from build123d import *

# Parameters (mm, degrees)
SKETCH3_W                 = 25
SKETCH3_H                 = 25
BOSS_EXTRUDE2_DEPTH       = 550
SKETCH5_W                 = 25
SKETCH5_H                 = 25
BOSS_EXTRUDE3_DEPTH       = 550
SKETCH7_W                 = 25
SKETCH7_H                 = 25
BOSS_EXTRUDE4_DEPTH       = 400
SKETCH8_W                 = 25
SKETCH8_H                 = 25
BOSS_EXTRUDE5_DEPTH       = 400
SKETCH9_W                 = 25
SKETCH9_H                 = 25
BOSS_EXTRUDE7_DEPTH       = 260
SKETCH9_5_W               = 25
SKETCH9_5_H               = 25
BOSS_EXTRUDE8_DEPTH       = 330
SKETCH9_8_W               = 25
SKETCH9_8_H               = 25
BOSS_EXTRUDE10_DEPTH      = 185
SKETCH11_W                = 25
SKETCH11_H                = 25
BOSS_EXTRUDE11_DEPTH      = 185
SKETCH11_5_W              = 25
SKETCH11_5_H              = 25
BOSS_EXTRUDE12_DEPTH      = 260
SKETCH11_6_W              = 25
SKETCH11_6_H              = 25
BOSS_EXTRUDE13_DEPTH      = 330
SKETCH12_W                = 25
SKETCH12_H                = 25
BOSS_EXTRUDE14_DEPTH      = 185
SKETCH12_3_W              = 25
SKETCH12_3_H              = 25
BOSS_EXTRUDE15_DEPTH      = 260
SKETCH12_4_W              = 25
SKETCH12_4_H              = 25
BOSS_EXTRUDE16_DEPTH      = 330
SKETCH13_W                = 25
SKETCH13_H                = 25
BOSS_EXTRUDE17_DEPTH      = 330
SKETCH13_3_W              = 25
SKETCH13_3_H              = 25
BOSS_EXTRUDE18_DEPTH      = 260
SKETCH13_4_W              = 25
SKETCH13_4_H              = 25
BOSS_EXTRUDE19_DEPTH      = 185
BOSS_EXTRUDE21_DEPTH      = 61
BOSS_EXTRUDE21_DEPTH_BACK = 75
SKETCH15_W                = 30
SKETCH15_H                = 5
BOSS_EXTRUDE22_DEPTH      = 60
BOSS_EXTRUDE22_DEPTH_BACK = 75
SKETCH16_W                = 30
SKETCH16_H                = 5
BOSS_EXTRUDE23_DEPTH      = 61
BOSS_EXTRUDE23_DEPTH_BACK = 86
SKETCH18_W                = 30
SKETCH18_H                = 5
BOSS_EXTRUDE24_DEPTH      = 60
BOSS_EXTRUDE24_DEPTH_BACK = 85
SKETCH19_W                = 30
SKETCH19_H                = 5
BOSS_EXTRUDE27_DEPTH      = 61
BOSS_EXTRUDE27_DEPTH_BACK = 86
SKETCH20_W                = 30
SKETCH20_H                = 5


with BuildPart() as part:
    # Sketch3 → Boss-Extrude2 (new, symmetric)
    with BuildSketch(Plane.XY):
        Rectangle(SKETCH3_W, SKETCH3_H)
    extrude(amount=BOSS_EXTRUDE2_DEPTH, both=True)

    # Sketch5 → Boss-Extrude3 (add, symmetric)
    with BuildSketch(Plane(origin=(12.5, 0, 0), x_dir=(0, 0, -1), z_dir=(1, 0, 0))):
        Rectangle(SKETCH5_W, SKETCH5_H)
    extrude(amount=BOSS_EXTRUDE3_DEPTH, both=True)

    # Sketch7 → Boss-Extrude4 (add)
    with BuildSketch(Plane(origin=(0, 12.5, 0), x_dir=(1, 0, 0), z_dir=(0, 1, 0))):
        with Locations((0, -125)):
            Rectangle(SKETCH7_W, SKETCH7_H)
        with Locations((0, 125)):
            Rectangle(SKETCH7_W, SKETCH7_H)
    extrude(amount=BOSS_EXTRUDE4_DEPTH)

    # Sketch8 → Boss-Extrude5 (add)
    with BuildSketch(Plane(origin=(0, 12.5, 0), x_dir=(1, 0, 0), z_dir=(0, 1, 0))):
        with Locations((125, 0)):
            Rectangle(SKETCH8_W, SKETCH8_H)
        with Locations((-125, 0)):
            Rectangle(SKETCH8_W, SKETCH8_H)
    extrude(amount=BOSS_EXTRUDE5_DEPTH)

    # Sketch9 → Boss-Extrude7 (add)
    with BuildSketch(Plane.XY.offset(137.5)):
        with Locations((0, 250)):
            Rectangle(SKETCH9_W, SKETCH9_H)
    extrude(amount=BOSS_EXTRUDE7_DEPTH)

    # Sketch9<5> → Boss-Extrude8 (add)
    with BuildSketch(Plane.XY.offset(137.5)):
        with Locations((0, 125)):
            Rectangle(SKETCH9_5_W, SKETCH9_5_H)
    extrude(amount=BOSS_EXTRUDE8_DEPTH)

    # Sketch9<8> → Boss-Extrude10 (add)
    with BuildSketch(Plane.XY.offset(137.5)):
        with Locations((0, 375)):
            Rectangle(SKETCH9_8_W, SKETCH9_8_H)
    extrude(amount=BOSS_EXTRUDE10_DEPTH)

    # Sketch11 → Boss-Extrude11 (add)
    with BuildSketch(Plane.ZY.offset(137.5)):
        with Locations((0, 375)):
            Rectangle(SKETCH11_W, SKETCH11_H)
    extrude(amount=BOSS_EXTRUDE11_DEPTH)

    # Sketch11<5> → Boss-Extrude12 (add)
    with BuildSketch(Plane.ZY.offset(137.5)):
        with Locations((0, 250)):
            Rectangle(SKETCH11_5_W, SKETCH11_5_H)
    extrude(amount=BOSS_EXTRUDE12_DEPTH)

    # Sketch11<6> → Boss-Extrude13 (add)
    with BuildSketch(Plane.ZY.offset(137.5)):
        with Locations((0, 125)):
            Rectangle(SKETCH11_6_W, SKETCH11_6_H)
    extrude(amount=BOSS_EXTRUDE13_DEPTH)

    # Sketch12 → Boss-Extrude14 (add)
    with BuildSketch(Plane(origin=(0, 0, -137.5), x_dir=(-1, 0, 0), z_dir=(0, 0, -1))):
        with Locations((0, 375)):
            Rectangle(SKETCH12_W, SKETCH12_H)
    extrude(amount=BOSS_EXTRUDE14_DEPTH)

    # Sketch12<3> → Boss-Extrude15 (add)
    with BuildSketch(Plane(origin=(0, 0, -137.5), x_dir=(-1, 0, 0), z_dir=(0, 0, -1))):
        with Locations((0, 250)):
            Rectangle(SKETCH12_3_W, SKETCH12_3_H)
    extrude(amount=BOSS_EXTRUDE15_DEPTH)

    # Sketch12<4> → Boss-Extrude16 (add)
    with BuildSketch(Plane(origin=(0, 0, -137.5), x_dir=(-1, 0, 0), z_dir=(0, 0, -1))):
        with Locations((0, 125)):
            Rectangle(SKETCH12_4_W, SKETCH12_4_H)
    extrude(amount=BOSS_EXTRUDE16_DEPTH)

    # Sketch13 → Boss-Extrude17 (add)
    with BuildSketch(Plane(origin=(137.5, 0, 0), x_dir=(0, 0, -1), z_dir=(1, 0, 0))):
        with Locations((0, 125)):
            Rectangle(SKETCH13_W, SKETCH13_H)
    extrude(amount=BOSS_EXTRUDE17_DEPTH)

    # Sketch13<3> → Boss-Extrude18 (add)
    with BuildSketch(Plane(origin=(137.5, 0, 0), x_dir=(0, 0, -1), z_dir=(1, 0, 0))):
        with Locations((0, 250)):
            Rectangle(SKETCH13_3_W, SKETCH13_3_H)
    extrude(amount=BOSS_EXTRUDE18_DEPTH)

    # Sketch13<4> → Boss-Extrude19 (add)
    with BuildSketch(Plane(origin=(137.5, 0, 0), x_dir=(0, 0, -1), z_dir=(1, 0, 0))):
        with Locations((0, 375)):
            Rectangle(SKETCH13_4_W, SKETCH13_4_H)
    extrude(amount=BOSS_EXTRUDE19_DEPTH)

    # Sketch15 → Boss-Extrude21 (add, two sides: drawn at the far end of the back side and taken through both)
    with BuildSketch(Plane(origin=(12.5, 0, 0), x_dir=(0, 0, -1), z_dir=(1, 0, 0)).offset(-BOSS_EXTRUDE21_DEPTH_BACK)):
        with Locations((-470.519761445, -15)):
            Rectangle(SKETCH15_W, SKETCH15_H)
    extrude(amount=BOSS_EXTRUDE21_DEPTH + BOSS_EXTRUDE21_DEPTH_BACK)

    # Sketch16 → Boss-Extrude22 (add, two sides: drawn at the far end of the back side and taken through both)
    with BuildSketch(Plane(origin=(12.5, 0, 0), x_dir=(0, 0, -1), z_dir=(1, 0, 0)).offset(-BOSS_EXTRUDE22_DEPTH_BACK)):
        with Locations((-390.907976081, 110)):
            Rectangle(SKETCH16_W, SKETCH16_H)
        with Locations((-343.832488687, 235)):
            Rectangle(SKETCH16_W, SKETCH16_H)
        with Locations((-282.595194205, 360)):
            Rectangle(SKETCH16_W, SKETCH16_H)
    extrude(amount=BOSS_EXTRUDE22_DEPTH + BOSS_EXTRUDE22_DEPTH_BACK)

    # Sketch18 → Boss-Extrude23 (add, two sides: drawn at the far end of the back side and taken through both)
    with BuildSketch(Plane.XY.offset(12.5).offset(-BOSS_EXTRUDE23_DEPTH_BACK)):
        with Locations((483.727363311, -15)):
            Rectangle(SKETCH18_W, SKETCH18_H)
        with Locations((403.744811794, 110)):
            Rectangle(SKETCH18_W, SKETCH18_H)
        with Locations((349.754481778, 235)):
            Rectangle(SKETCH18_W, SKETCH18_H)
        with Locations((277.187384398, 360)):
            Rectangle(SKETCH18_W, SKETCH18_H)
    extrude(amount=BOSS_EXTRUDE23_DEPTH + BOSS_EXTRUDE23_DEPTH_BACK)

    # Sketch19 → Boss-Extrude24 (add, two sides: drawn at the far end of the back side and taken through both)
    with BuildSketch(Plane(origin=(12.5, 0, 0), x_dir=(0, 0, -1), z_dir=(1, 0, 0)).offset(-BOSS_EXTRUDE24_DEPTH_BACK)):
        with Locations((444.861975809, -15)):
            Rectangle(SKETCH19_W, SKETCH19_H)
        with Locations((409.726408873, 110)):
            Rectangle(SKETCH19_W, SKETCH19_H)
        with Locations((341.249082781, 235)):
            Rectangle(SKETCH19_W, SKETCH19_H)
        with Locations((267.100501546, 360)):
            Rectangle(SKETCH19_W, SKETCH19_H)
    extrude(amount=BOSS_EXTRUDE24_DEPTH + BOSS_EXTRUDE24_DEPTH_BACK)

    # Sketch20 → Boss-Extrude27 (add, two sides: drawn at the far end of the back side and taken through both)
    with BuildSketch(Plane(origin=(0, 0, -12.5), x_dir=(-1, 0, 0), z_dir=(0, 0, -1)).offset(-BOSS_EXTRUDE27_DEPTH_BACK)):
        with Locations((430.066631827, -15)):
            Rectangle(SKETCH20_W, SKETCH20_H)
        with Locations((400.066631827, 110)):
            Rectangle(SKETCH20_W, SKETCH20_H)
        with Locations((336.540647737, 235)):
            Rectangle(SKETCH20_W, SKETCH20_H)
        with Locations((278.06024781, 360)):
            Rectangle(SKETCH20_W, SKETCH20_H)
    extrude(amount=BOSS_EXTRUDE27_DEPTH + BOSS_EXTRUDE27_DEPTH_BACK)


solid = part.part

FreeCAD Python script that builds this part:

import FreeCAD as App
import Part
import Sketcher

V = App.Vector

doc = App.newDocument("Part")
body = doc.addObject("PartDesign::Body", "Body")

# Sketch on XY plane
sketch1 = body.newObject("Sketcher::SketchObject", "Sketch")
sketch1.AttachmentSupport = (doc.getObject("XY_Plane"), [""])
sketch1.MapMode = "FlatFace"
sketch1.addGeometry(Part.LineSegment(V(-12, 12, 0), V(-12, -12, 0)), False)
sketch1.addGeometry(Part.LineSegment(V(-12, -12, 0), V(12, -12, 0)), False)
sketch1.addGeometry(Part.LineSegment(V(12, -12, 0), V(12, 12, 0)), False)
sketch1.addGeometry(Part.LineSegment(V(12, 12, 0), V(-12, 12, 0)), False)
sketch1.addConstraint(Sketcher.Constraint("Coincident", 0, 2, 1, 1))
sketch1.addConstraint(Sketcher.Constraint("Coincident", 1, 2, 2, 1))
sketch1.addConstraint(Sketcher.Constraint("Coincident", 2, 2, 3, 1))
sketch1.addConstraint(Sketcher.Constraint("Coincident", 3, 2, 0, 1))
sketch1.addConstraint(Sketcher.Constraint("Vertical", 0))
sketch1.addConstraint(Sketcher.Constraint("Horizontal", 1))
sketch1.addConstraint(Sketcher.Constraint("Vertical", 2))
sketch1.addConstraint(Sketcher.Constraint("Horizontal", 3))
sketch1.addConstraint(Sketcher.Constraint("Symmetric", 0, 2, 2, 2, -1, 1))
sketch1.addConstraint(Sketcher.Constraint("Equal", 3, 0))
sketch1.addConstraint(Sketcher.Constraint("DistanceX", 1, 1, 1, 2, 25.0))
pad1 = body.newObject("PartDesign::Pad", "Pad")
pad1.Profile = sketch1
pad1.Length = 1100
pad1.Midplane = True

# Sketch on YZ plane
sketch2 = body.newObject("Sketcher::SketchObject", "Sketch001")
sketch2.AttachmentSupport = (doc.getObject("YZ_Plane"), [""])
sketch2.MapMode = "FlatFace"
sketch2.AttachmentOffset = App.Placement(V(0, 0, 12.5), App.Rotation())
sketch2.addGeometry(Part.LineSegment(V(12, 12, 0), V(-12, 12, 0)), False)
sketch2.addGeometry(Part.LineSegment(V(-12, 12, 0), V(-12, -12, 0)), False)
sketch2.addGeometry(Part.LineSegment(V(-12, -12, 0), V(12, -12, 0)), False)
sketch2.addGeometry(Part.LineSegment(V(12, -12, 0), V(12, 12, 0)), False)
sketch2.addConstraint(Sketcher.Constraint("Coincident", 0, 2, 1, 1))
sketch2.addConstraint(Sketcher.Constraint("Coincident", 1, 2, 2, 1))
sketch2.addConstraint(Sketcher.Constraint("Coincident", 2, 2, 3, 1))
sketch2.addConstraint(Sketcher.Constraint("Coincident", 3, 2, 0, 1))
sketch2.addConstraint(Sketcher.Constraint("Horizontal", 0))
sketch2.addConstraint(Sketcher.Constraint("Vertical", 1))
sketch2.addConstraint(Sketcher.Constraint("Horizontal", 2))
sketch2.addConstraint(Sketcher.Constraint("Vertical", 3))
sketch2.addConstraint(Sketcher.Constraint("Symmetric", 0, 2, 2, 2, -1, 1))
sketch2.addConstraint(Sketcher.Constraint("Equal", 2, 1))
sketch2.addConstraint(Sketcher.Constraint("DistanceX", 0, 2, 0, 1, 25.0))
pad2 = body.newObject("PartDesign::Pad", "Pad001")
pad2.Profile = sketch2
pad2.Length = 1100
pad2.Midplane = True

# Sketch on XZ plane
sketch3 = body.newObject("Sketcher::SketchObject", "Sketch002")
sketch3.AttachmentSupport = (doc.getObject("XZ_Plane"), [""])
sketch3.MapMode = "FlatFace"
sketch3.AttachmentOffset = App.Placement(V(0, 0, -12.5), App.Rotation())
sketch3.addGeometry(Part.LineSegment(V(-12, 112, 0), V(-12, 138, 0)), False)
sketch3.addGeometry(Part.LineSegment(V(-12, 138, 0), V(12, 138, 0)), False)
sketch3.addGeometry(Part.LineSegment(V(12, 138, 0), V(12, 112, 0)), False)
sketch3.addGeometry(Part.LineSegment(V(12, 112, 0), V(-12, 112, 0)), False)
sketch3.addGeometry(Part.LineSegment(V(-12, -138, 0), V(-12, -112, 0)), False)
sketch3.addGeometry(Part.LineSegment(V(-12, -112, 0), V(12, -112, 0)), False)
sketch3.addGeometry(Part.LineSegment(V(12, -112, 0), V(12, -138, 0)), False)
sketch3.addGeometry(Part.LineSegment(V(12, -138, 0), V(-12, -138, 0)), False)
sketch3.addConstraint(Sketcher.Constraint("Coincident", 0, 2, 1, 1))
sketch3.addConstraint(Sketcher.Constraint("Coincident", 1, 2, 2, 1))
sketch3.addConstraint(Sketcher.Constraint("Coincident", 2, 2, 3, 1))
sketch3.addConstraint(Sketcher.Constraint("Coincident", 3, 2, 0, 1))
sketch3.addConstraint(Sketcher.Constraint("Coincident", 4, 2, 5, 1))
sketch3.addConstraint(Sketcher.Constraint("Coincident", 5, 2, 6, 1))
sketch3.addConstraint(Sketcher.Constraint("Coincident", 6, 2, 7, 1))
sketch3.addConstraint(Sketcher.Constraint("Coincident", 7, 2, 4, 1))
sketch3.addConstraint(Sketcher.Constraint("Vertical", 0))
sketch3.addConstraint(Sketcher.Constraint("Horizontal", 1))
sketch3.addConstraint(Sketcher.Constraint("Vertical", 2))
sketch3.addConstraint(Sketcher.Constraint("Horizontal", 3))
sketch3.addConstraint(Sketcher.Constraint("Vertical", 4))
sketch3.addConstraint(Sketcher.Constraint("Horizontal", 5))
sketch3.addConstraint(Sketcher.Constraint("Vertical", 6))
sketch3.addConstraint(Sketcher.Constraint("Horizontal", 7))
sketch3.addConstraint(Sketcher.Constraint("Symmetric", 2, 2, 4, 2, -1, 1))
sketch3.addConstraint(Sketcher.Constraint("Symmetric", 0, 2, 6, 2, -1, 1))
sketch3.addConstraint(Sketcher.Constraint("Vertical", 3, 2, 4, 2))
sketch3.addConstraint(Sketcher.Constraint("Equal", 7, 0))
sketch3.addConstraint(Sketcher.Constraint("DistanceX", 1, 1, 1, 2, 25.0))
sketch3.addConstraint(Sketcher.Constraint("DistanceY", 4, 2, 3, 2, 225.0))
pad3 = body.newObject("PartDesign::Pad", "Pad002")
pad3.Profile = sketch3
pad3.Length = 400
pad3.Reversed = True

# Sketch on XZ plane
sketch4 = body.newObject("Sketcher::SketchObject", "Sketch003")
sketch4.AttachmentSupport = (doc.getObject("XZ_Plane"), [""])
sketch4.MapMode = "FlatFace"
sketch4.AttachmentOffset = App.Placement(V(0, 0, -12.5), App.Rotation())
sketch4.addGeometry(Part.LineSegment(V(112, -12, 0), V(112, 12, 0)), False)
sketch4.addGeometry(Part.LineSegment(V(112, 12, 0), V(138, 12, 0)), False)
sketch4.addGeometry(Part.LineSegment(V(138, 12, 0), V(138, -12, 0)), False)
sketch4.addGeometry(Part.LineSegment(V(138, -12, 0), V(112, -12, 0)), False)
sketch4.addGeometry(Part.LineSegment(V(-138, -12, 0), V(-138, 12, 0)), False)
sketch4.addGeometry(Part.LineSegment(V(-138, 12, 0), V(-112, 12, 0)), False)
sketch4.addGeometry(Part.LineSegment(V(-112, 12, 0), V(-112, -12, 0)), False)
sketch4.addGeometry(Part.LineSegment(V(-112, -12, 0), V(-138, -12, 0)), False)
sketch4.addConstraint(Sketcher.Constraint("Coincident", 0, 2, 1, 1))
sketch4.addConstraint(Sketcher.Constraint("Coincident", 1, 2, 2, 1))
sketch4.addConstraint(Sketcher.Constraint("Coincident", 2, 2, 3, 1))
sketch4.addConstraint(Sketcher.Constraint("Coincident", 3, 2, 0, 1))
sketch4.addConstraint(Sketcher.Constraint("Coincident", 4, 2, 5, 1))
sketch4.addConstraint(Sketcher.Constraint("Coincident", 5, 2, 6, 1))
sketch4.addConstraint(Sketcher.Constraint("Coincident", 6, 2, 7, 1))
sketch4.addConstraint(Sketcher.Constraint("Coincident", 7, 2, 4, 1))
sketch4.addConstraint(Sketcher.Constraint("Vertical", 0))
sketch4.addConstraint(Sketcher.Constraint("Horizontal", 1))
sketch4.addConstraint(Sketcher.Constraint("Vertical", 2))
sketch4.addConstraint(Sketcher.Constraint("Horizontal", 3))
sketch4.addConstraint(Sketcher.Constraint("Vertical", 4))
sketch4.addConstraint(Sketcher.Constraint("Horizontal", 5))
sketch4.addConstraint(Sketcher.Constraint("Vertical", 6))
sketch4.addConstraint(Sketcher.Constraint("Horizontal", 7))
sketch4.addConstraint(Sketcher.Constraint("Symmetric", 2, 2, 4, 2, -1, 1))
sketch4.addConstraint(Sketcher.Constraint("Symmetric", 0, 2, 6, 2, -1, 1))
sketch4.addConstraint(Sketcher.Constraint("Horizontal", 1, 2, 4, 2))
sketch4.addConstraint(Sketcher.Constraint("Equal", 7, 0))
sketch4.addConstraint(Sketcher.Constraint("DistanceX", 1, 1, 1, 2, 25.0))
sketch4.addConstraint(Sketcher.Constraint("DistanceX", 4, 2, 0, 2, 250.0))
pad4 = body.newObject("PartDesign::Pad", "Pad003")
pad4.Profile = sketch4
pad4.Length = 400
pad4.Reversed = True

# Sketch on XY plane
sketch5 = body.newObject("Sketcher::SketchObject", "Sketch004")
sketch5.AttachmentSupport = (doc.getObject("XY_Plane"), [""])
sketch5.MapMode = "FlatFace"
sketch5.AttachmentOffset = App.Placement(V(0, 0, 137.5), App.Rotation())
sketch5.addGeometry(Part.LineSegment(V(-12, 262, 0), V(-12, 238, 0)), False)
sketch5.addGeometry(Part.LineSegment(V(-12, 238, 0), V(12, 238, 0)), False)
sketch5.addGeometry(Part.LineSegment(V(12, 238, 0), V(12, 262, 0)), False)
sketch5.addGeometry(Part.LineSegment(V(12, 262, 0), V(-12, 262, 0)), False)
sketch5.addConstraint(Sketcher.Constraint("Coincident", 0, 2, 1, 1))
sketch5.addConstraint(Sketcher.Constraint("Coincident", 1, 2, 2, 1))
sketch5.addConstraint(Sketcher.Constraint("Coincident", 2, 2, 3, 1))
sketch5.addConstraint(Sketcher.Constraint("Coincident", 3, 2, 0, 1))
sketch5.addConstraint(Sketcher.Constraint("Vertical", 0))
sketch5.addConstraint(Sketcher.Constraint("Horizontal", 1))
sketch5.addConstraint(Sketcher.Constraint("Vertical", 2))
sketch5.addConstraint(Sketcher.Constraint("Horizontal", 3))
sketch5.addConstraint(Sketcher.Constraint("Equal", 3, 0))
sketch5.addConstraint(Sketcher.Constraint("DistanceX", 1, 1, 1, 2, 25.0))
sketch5.addConstraint(Sketcher.Constraint("DistanceX", 0, 2, -1, 1, 12.5))
sketch5.addConstraint(Sketcher.Constraint("DistanceY", -1, 1, 0, 2, 237.5))
pad5 = body.newObject("PartDesign::Pad", "Pad004")
pad5.Profile = sketch5
pad5.Length = 260

# Sketch on XY plane
sketch6 = body.newObject("Sketcher::SketchObject", "Sketch005")
sketch6.AttachmentSupport = (doc.getObject("XY_Plane"), [""])
sketch6.MapMode = "FlatFace"
sketch6.AttachmentOffset = App.Placement(V(0, 0, 137.5), App.Rotation())
sketch6.addGeometry(Part.LineSegment(V(-12, 138, 0), V(-12, 112, 0)), False)
sketch6.addGeometry(Part.LineSegment(V(-12, 112, 0), V(12, 112, 0)), False)
sketch6.addGeometry(Part.LineSegment(V(12, 112, 0), V(12, 138, 0)), False)
sketch6.addGeometry(Part.LineSegment(V(12, 138, 0), V(-12, 138, 0)), False)
sketch6.addConstraint(Sketcher.Constraint("Coincident", 0, 2, 1, 1))
sketch6.addConstraint(Sketcher.Constraint("Coincident", 1, 2, 2, 1))
sketch6.addConstraint(Sketcher.Constraint("Coincident", 2, 2, 3, 1))
sketch6.addConstraint(Sketcher.Constraint("Coincident", 3, 2, 0, 1))
sketch6.addConstraint(Sketcher.Constraint("Vertical", 0))
sketch6.addConstraint(Sketcher.Constraint("Horizontal", 1))
sketch6.addConstraint(Sketcher.Constraint("Vertical", 2))
sketch6.addConstraint(Sketcher.Constraint("Horizontal", 3))
sketch6.addConstraint(Sketcher.Constraint("Equal", 3, 0))
sketch6.addConstraint(Sketcher.Constraint("DistanceX", 1, 1, 1, 2, 25.0))
sketch6.addConstraint(Sketcher.Constraint("DistanceX", 0, 2, -1, 1, 12.5))
sketch6.addConstraint(Sketcher.Constraint("DistanceY", -1, 1, 0, 2, 112.5))
pad6 = body.newObject("PartDesign::Pad", "Pad005")
pad6.Profile = sketch6
pad6.Length = 330

# Sketch on XY plane
sketch7 = body.newObject("Sketcher::SketchObject", "Sketch006")
sketch7.AttachmentSupport = (doc.getObject("XY_Plane"), [""])
sketch7.MapMode = "FlatFace"
sketch7.AttachmentOffset = App.Placement(V(0, 0, 137.5), App.Rotation())
sketch7.addGeometry(Part.LineSegment(V(-12, 388, 0), V(-12, 362, 0)), False)
sketch7.addGeometry(Part.LineSegment(V(-12, 362, 0), V(12, 362, 0)), False)
sketch7.addGeometry(Part.LineSegment(V(12, 362, 0), V(12, 388, 0)), False)
sketch7.addGeometry(Part.LineSegment(V(12, 388, 0), V(-12, 388, 0)), False)
sketch7.addConstraint(Sketcher.Constraint("Coincident", 0, 2, 1, 1))
sketch7.addConstraint(Sketcher.Constraint("Coincident", 1, 2, 2, 1))
sketch7.addConstraint(Sketcher.Constraint("Coincident", 2, 2, 3, 1))
sketch7.addConstraint(Sketcher.Constraint("Coincident", 3, 2, 0, 1))
sketch7.addConstraint(Sketcher.Constraint("Vertical", 0))
sketch7.addConstraint(Sketcher.Constraint("Horizontal", 1))
sketch7.addConstraint(Sketcher.Constraint("Vertical", 2))
sketch7.addConstraint(Sketcher.Constraint("Horizontal", 3))
sketch7.addConstraint(Sketcher.Constraint("Equal", 3, 0))
sketch7.addConstraint(Sketcher.Constraint("DistanceX", 1, 1, 1, 2, 25.0))
sketch7.addConstraint(Sketcher.Constraint("DistanceX", 0, 2, -1, 1, 12.5))
sketch7.addConstraint(Sketcher.Constraint("DistanceY", -1, 1, 0, 2, 362.5))
pad7 = body.newObject("PartDesign::Pad", "Pad006")
pad7.Profile = sketch7
pad7.Length = 185

# Sketch on YZ plane
sketch8 = body.newObject("Sketcher::SketchObject", "Sketch007")
sketch8.AttachmentSupport = (doc.getObject("YZ_Plane"), [""])
sketch8.MapMode = "FlatFace"
sketch8.AttachmentOffset = App.Placement(V(0, 0, -137.5), App.Rotation())
sketch8.addGeometry(Part.LineSegment(V(388, -12, 0), V(362, -12, 0)), False)
sketch8.addGeometry(Part.LineSegment(V(362, -12, 0), V(362, 12, 0)), False)
sketch8.addGeometry(Part.LineSegment(V(362, 12, 0), V(388, 12, 0)), False)
sketch8.addGeometry(Part.LineSegment(V(388, 12, 0), V(388, -12, 0)), False)
sketch8.addConstraint(Sketcher.Constraint("Coincident", 0, 2, 1, 1))
sketch8.addConstraint(Sketcher.Constraint("Coincident", 1, 2, 2, 1))
sketch8.addConstraint(Sketcher.Constraint("Coincident", 2, 2, 3, 1))
sketch8.addConstraint(Sketcher.Constraint("Coincident", 3, 2, 0, 1))
sketch8.addConstraint(Sketcher.Constraint("Horizontal", 0))
sketch8.addConstraint(Sketcher.Constraint("Vertical", 1))
sketch8.addConstraint(Sketcher.Constraint("Horizontal", 2))
sketch8.addConstraint(Sketcher.Constraint("Vertical", 3))
sketch8.addConstraint(Sketcher.Constraint("Equal", 2, 1))
sketch8.addConstraint(Sketcher.Constraint("DistanceX", 0, 2, 0, 1, 25.0))
sketch8.addConstraint(Sketcher.Constraint("DistanceX", -1, 1, 0, 2, 362.5))
sketch8.addConstraint(Sketcher.Constraint("DistanceY", 0, 2, -1, 1, 12.5))
pad8 = body.newObject("PartDesign::Pad", "Pad007")
pad8.Profile = sketch8
pad8.Length = 185
pad8.Reversed = True

# Sketch on YZ plane
sketch9 = body.newObject("Sketcher::SketchObject", "Sketch008")
sketch9.AttachmentSupport = (doc.getObject("YZ_Plane"), [""])
sketch9.MapMode = "FlatFace"
sketch9.AttachmentOffset = App.Placement(V(0, 0, -137.5), App.Rotation())
sketch9.addGeometry(Part.LineSegment(V(262, -12, 0), V(238, -12, 0)), False)
sketch9.addGeometry(Part.LineSegment(V(238, -12, 0), V(238, 12, 0)), False)
sketch9.addGeometry(Part.LineSegment(V(238, 12, 0), V(262, 12, 0)), False)
sketch9.addGeometry(Part.LineSegment(V(262, 12, 0), V(262, -12, 0)), False)
sketch9.addConstraint(Sketcher.Constraint("Coincident", 0, 2, 1, 1))
sketch9.addConstraint(Sketcher.Constraint("Coincident", 1, 2, 2, 1))
sketch9.addConstraint(Sketcher.Constraint("Coincident", 2, 2, 3, 1))
sketch9.addConstraint(Sketcher.Constraint("Coincident", 3, 2, 0, 1))
sketch9.addConstraint(Sketcher.Constraint("Horizontal", 0))
sketch9.addConstraint(Sketcher.Constraint("Vertical", 1))
sketch9.addConstraint(Sketcher.Constraint("Horizontal", 2))
sketch9.addConstraint(Sketcher.Constraint("Vertical", 3))
sketch9.addConstraint(Sketcher.Constraint("Equal", 2, 1))
sketch9.addConstraint(Sketcher.Constraint("DistanceX", 0, 2, 0, 1, 25.0))
sketch9.addConstraint(Sketcher.Constraint("DistanceX", -1, 1, 0, 2, 237.5))
sketch9.addConstraint(Sketcher.Constraint("DistanceY", 0, 2, -1, 1, 12.5))
pad9 = body.newObject("PartDesign::Pad", "Pad008")
pad9.Profile = sketch9
pad9.Length = 260
pad9.Reversed = True

# Sketch on YZ plane
sketch10 = body.newObject("Sketcher::SketchObject", "Sketch009")
sketch10.AttachmentSupport = (doc.getObject("YZ_Plane"), [""])
sketch10.MapMode = "FlatFace"
sketch10.AttachmentOffset = App.Placement(V(0, 0, -137.5), App.Rotation())
sketch10.addGeometry(Part.LineSegment(V(138, -12, 0), V(112, -12, 0)), False)
sketch10.addGeometry(Part.LineSegment(V(112, -12, 0), V(112, 12, 0)), False)
sketch10.addGeometry(Part.LineSegment(V(112, 12, 0), V(138, 12, 0)), False)
sketch10.addGeometry(Part.LineSegment(V(138, 12, 0), V(138, -12, 0)), False)
sketch10.addConstraint(Sketcher.Constraint("Coincident", 0, 2, 1, 1))
sketch10.addConstraint(Sketcher.Constraint("Coincident", 1, 2, 2, 1))
sketch10.addConstraint(Sketcher.Constraint("Coincident", 2, 2, 3, 1))
sketch10.addConstraint(Sketcher.Constraint("Coincident", 3, 2, 0, 1))
sketch10.addConstraint(Sketcher.Constraint("Horizontal", 0))
sketch10.addConstraint(Sketcher.Constraint("Vertical", 1))
sketch10.addConstraint(Sketcher.Constraint("Horizontal", 2))
sketch10.addConstraint(Sketcher.Constraint("Vertical", 3))
sketch10.addConstraint(Sketcher.Constraint("Equal", 2, 1))
sketch10.addConstraint(Sketcher.Constraint("DistanceX", 0, 2, 0, 1, 25.0))
sketch10.addConstraint(Sketcher.Constraint("DistanceX", -1, 1, 0, 2, 112.5))
sketch10.addConstraint(Sketcher.Constraint("DistanceY", 0, 2, -1, 1, 12.5))
pad10 = body.newObject("PartDesign::Pad", "Pad009")
pad10.Profile = sketch10
pad10.Length = 330
pad10.Reversed = True

# Sketch on XY plane
sketch11 = body.newObject("Sketcher::SketchObject", "Sketch010")
sketch11.AttachmentSupport = (doc.getObject("XY_Plane"), [""])
sketch11.MapMode = "FlatFace"
sketch11.AttachmentOffset = App.Placement(V(0, 0, -137.5), App.Rotation())
sketch11.addGeometry(Part.LineSegment(V(12, 388, 0), V(12, 362, 0)), False)
sketch11.addGeometry(Part.LineSegment(V(12, 362, 0), V(-12, 362, 0)), False)
sketch11.addGeometry(Part.LineSegment(V(-12, 362, 0), V(-12, 388, 0)), False)
sketch11.addGeometry(Part.LineSegment(V(-12, 388, 0), V(12, 388, 0)), False)
sketch11.addConstraint(Sketcher.Constraint("Coincident", 0, 2, 1, 1))
sketch11.addConstraint(Sketcher.Constraint("Coincident", 1, 2, 2, 1))
sketch11.addConstraint(Sketcher.Constraint("Coincident", 2, 2, 3, 1))
sketch11.addConstraint(Sketcher.Constraint("Coincident", 3, 2, 0, 1))
sketch11.addConstraint(Sketcher.Constraint("Vertical", 0))
sketch11.addConstraint(Sketcher.Constraint("Horizontal", 1))
sketch11.addConstraint(Sketcher.Constraint("Vertical", 2))
sketch11.addConstraint(Sketcher.Constraint("Horizontal", 3))
sketch11.addConstraint(Sketcher.Constraint("Equal", 3, 0))
sketch11.addConstraint(Sketcher.Constraint("DistanceX", 1, 2, 1, 1, 25.0))
sketch11.addConstraint(Sketcher.Constraint("DistanceX", -1, 1, 0, 2, 12.5))
sketch11.addConstraint(Sketcher.Constraint("DistanceY", -1, 1, 0, 2, 362.5))
pad11 = body.newObject("PartDesign::Pad", "Pad010")
pad11.Profile = sketch11
pad11.Length = 185
pad11.Reversed = True

# Sketch on XY plane
sketch12 = body.newObject("Sketcher::SketchObject", "Sketch011")
sketch12.AttachmentSupport = (doc.getObject("XY_Plane"), [""])
sketch12.MapMode = "FlatFace"
sketch12.AttachmentOffset = App.Placement(V(0, 0, -137.5), App.Rotation())
sketch12.addGeometry(Part.LineSegment(V(12, 262, 0), V(12, 238, 0)), False)
sketch12.addGeometry(Part.LineSegment(V(12, 238, 0), V(-12, 238, 0)), False)
sketch12.addGeometry(Part.LineSegment(V(-12, 238, 0), V(-12, 262, 0)), False)
sketch12.addGeometry(Part.LineSegment(V(-12, 262, 0), V(12, 262, 0)), False)
sketch12.addConstraint(Sketcher.Constraint("Coincident", 0, 2, 1, 1))
sketch12.addConstraint(Sketcher.Constraint("Coincident", 1, 2, 2, 1))
sketch12.addConstraint(Sketcher.Constraint("Coincident", 2, 2, 3, 1))
sketch12.addConstraint(Sketcher.Constraint("Coincident", 3, 2, 0, 1))
sketch12.addConstraint(Sketcher.Constraint("Vertical", 0))
sketch12.addConstraint(Sketcher.Constraint("Horizontal", 1))
sketch12.addConstraint(Sketcher.Constraint("Vertical", 2))
sketch12.addConstraint(Sketcher.Constraint("Horizontal", 3))
sketch12.addConstraint(Sketcher.Constraint("Equal", 3, 0))
sketch12.addConstraint(Sketcher.Constraint("DistanceX", 1, 2, 1, 1, 25.0))
sketch12.addConstraint(Sketcher.Constraint("DistanceX", -1, 1, 0, 2, 12.5))
sketch12.addConstraint(Sketcher.Constraint("DistanceY", -1, 1, 0, 2, 237.5))
pad12 = body.newObject("PartDesign::Pad", "Pad011")
pad12.Profile = sketch12
pad12.Length = 260
pad12.Reversed = True

# Sketch on XY plane
sketch13 = body.newObject("Sketcher::SketchObject", "Sketch012")
sketch13.AttachmentSupport = (doc.getObject("XY_Plane"), [""])
sketch13.MapMode = "FlatFace"
sketch13.AttachmentOffset = App.Placement(V(0, 0, -137.5), App.Rotation())
sketch13.addGeometry(Part.LineSegment(V(12, 138, 0), V(12, 112, 0)), False)
sketch13.addGeometry(Part.LineSegment(V(12, 112, 0), V(-12, 112, 0)), False)
sketch13.addGeometry(Part.LineSegment(V(-12, 112, 0), V(-12, 138, 0)), False)
sketch13.addGeometry(Part.LineSegment(V(-12, 138, 0), V(12, 138, 0)), False)
sketch13.addConstraint(Sketcher.Constraint("Coincident", 0, 2, 1, 1))
sketch13.addConstraint(Sketcher.Constraint("Coincident", 1, 2, 2, 1))
sketch13.addConstraint(Sketcher.Constraint("Coincident", 2, 2, 3, 1))
sketch13.addConstraint(Sketcher.Constraint("Coincident", 3, 2, 0, 1))
sketch13.addConstraint(Sketcher.Constraint("Vertical", 0))
sketch13.addConstraint(Sketcher.Constraint("Horizontal", 1))
sketch13.addConstraint(Sketcher.Constraint("Vertical", 2))
sketch13.addConstraint(Sketcher.Constraint("Horizontal", 3))
sketch13.addConstraint(Sketcher.Constraint("Equal", 3, 0))
sketch13.addConstraint(Sketcher.Constraint("DistanceX", 1, 2, 1, 1, 25.0))
sketch13.addConstraint(Sketcher.Constraint("DistanceX", -1, 1, 0, 2, 12.5))
sketch13.addConstraint(Sketcher.Constraint("DistanceY", -1, 1, 0, 2, 112.5))
pad13 = body.newObject("PartDesign::Pad", "Pad012")
pad13.Profile = sketch13
pad13.Length = 330
pad13.Reversed = True

# Sketch on YZ plane
sketch14 = body.newObject("Sketcher::SketchObject", "Sketch013")
sketch14.AttachmentSupport = (doc.getObject("YZ_Plane"), [""])
sketch14.MapMode = "FlatFace"
sketch14.AttachmentOffset = App.Placement(V(0, 0, 137.5), App.Rotation())
sketch14.addGeometry(Part.LineSegment(V(138, 12, 0), V(112, 12, 0)), False)
sketch14.addGeometry(Part.LineSegment(V(112, 12, 0), V(112, -12, 0)), False)
sketch14.addGeometry(Part.LineSegment(V(112, -12, 0), V(138, -12, 0)), False)
sketch14.addGeometry(Part.LineSegment(V(138, -12, 0), V(138, 12, 0)), False)
sketch14.addConstraint(Sketcher.Constraint("Coincident", 0, 2, 1, 1))
sketch14.addConstraint(Sketcher.Constraint("Coincident", 1, 2, 2, 1))
sketch14.addConstraint(Sketcher.Constraint("Coincident", 2, 2, 3, 1))
sketch14.addConstraint(Sketcher.Constraint("Coincident", 3, 2, 0, 1))
sketch14.addConstraint(Sketcher.Constraint("Horizontal", 0))
sketch14.addConstraint(Sketcher.Constraint("Vertical", 1))
sketch14.addConstraint(Sketcher.Constraint("Horizontal", 2))
sketch14.addConstraint(Sketcher.Constraint("Vertical", 3))
sketch14.addConstraint(Sketcher.Constraint("Equal", 2, 1))
sketch14.addConstraint(Sketcher.Constraint("DistanceX", 0, 2, 0, 1, 25.0))
sketch14.addConstraint(Sketcher.Constraint("DistanceX", -1, 1, 0, 2, 112.5))
sketch14.addConstraint(Sketcher.Constraint("DistanceY", -1, 1, 0, 2, 12.5))
pad14 = body.newObject("PartDesign::Pad", "Pad013")
pad14.Profile = sketch14
pad14.Length = 330

# Sketch on YZ plane
sketch15 = body.newObject("Sketcher::SketchObject", "Sketch014")
sketch15.AttachmentSupport = (doc.getObject("YZ_Plane"), [""])
sketch15.MapMode = "FlatFace"
sketch15.AttachmentOffset = App.Placement(V(0, 0, 137.5), App.Rotation())
sketch15.addGeometry(Part.LineSegment(V(262, 12, 0), V(238, 12, 0)), False)
sketch15.addGeometry(Part.LineSegment(V(238, 12, 0), V(238, -12, 0)), False)
sketch15.addGeometry(Part.LineSegment(V(238, -12, 0), V(262, -12, 0)), False)
sketch15.addGeometry(Part.LineSegment(V(262, -12, 0), V(262, 12, 0)), False)
sketch15.addConstraint(Sketcher.Constraint("Coincident", 0, 2, 1, 1))
sketch15.addConstraint(Sketcher.Constraint("Coincident", 1, 2, 2, 1))
sketch15.addConstraint(Sketcher.Constraint("Coincident", 2, 2, 3, 1))
sketch15.addConstraint(Sketcher.Constraint("Coincident", 3, 2, 0, 1))
sketch15.addConstraint(Sketcher.Constraint("Horizontal", 0))
sketch15.addConstraint(Sketcher.Constraint("Vertical", 1))
sketch15.addConstraint(Sketcher.Constraint("Horizontal", 2))
sketch15.addConstraint(Sketcher.Constraint("Vertical", 3))
sketch15.addConstraint(Sketcher.Constraint("Equal", 2, 1))
sketch15.addConstraint(Sketcher.Constraint("DistanceX", 0, 2, 0, 1, 25.0))
sketch15.addConstraint(Sketcher.Constraint("DistanceX", -1, 1, 0, 2, 237.5))
sketch15.addConstraint(Sketcher.Constraint("DistanceY", -1, 1, 0, 2, 12.5))
pad15 = body.newObject("PartDesign::Pad", "Pad014")
pad15.Profile = sketch15
pad15.Length = 260

# Sketch on YZ plane
sketch16 = body.newObject("Sketcher::SketchObject", "Sketch015")
sketch16.AttachmentSupport = (doc.getObject("YZ_Plane"), [""])
sketch16.MapMode = "FlatFace"
sketch16.AttachmentOffset = App.Placement(V(0, 0, 137.5), App.Rotation())
sketch16.addGeometry(Part.LineSegment(V(388, 12, 0), V(362, 12, 0)), False)
sketch16.addGeometry(Part.LineSegment(V(362, 12, 0), V(362, -12, 0)), False)
sketch16.addGeometry(Part.LineSegment(V(362, -12, 0), V(388, -12, 0)), False)
sketch16.addGeometry(Part.LineSegment(V(388, -12, 0), V(388, 12, 0)), False)
sketch16.addConstraint(Sketcher.Constraint("Coincident", 0, 2, 1, 1))
sketch16.addConstraint(Sketcher.Constraint("Coincident", 1, 2, 2, 1))
sketch16.addConstraint(Sketcher.Constraint("Coincident", 2, 2, 3, 1))
sketch16.addConstraint(Sketcher.Constraint("Coincident", 3, 2, 0, 1))
sketch16.addConstraint(Sketcher.Constraint("Horizontal", 0))
sketch16.addConstraint(Sketcher.Constraint("Vertical", 1))
sketch16.addConstraint(Sketcher.Constraint("Horizontal", 2))
sketch16.addConstraint(Sketcher.Constraint("Vertical", 3))
sketch16.addConstraint(Sketcher.Constraint("Equal", 2, 1))
sketch16.addConstraint(Sketcher.Constraint("DistanceX", 0, 2, 0, 1, 25.0))
sketch16.addConstraint(Sketcher.Constraint("DistanceX", -1, 1, 0, 2, 362.5))
sketch16.addConstraint(Sketcher.Constraint("DistanceY", -1, 1, 0, 2, 12.5))
pad16 = body.newObject("PartDesign::Pad", "Pad015")
pad16.Profile = sketch16
pad16.Length = 185

# Sketch on YZ plane
sketch17 = body.newObject("Sketcher::SketchObject", "Sketch016")
sketch17.AttachmentSupport = (doc.getObject("YZ_Plane"), [""])
sketch17.MapMode = "FlatFace"
sketch17.AttachmentOffset = App.Placement(V(0, 0, 12.5), App.Rotation())
sketch17.addGeometry(Part.LineSegment(V(-12, 486, 0), V(-18, 486, 0)), False)
sketch17.addGeometry(Part.LineSegment(V(-18, 486, 0), V(-18, 456, 0)), False)
sketch17.addGeometry(Part.LineSegment(V(-18, 456, 0), V(-12, 456, 0)), False)
sketch17.addGeometry(Part.LineSegment(V(-12, 456, 0), V(-12, 486, 0)), False)
sketch17.addConstraint(Sketcher.Constraint("Coincident", 0, 2, 1, 1))
sketch17.addConstraint(Sketcher.Constraint("Coincident", 1, 2, 2, 1))
sketch17.addConstraint(Sketcher.Constraint("Coincident", 2, 2, 3, 1))
sketch17.addConstraint(Sketcher.Constraint("Coincident", 3, 2, 0, 1))
sketch17.addConstraint(Sketcher.Constraint("Horizontal", 0))
sketch17.addConstraint(Sketcher.Constraint("Vertical", 1))
sketch17.addConstraint(Sketcher.Constraint("Horizontal", 2))
sketch17.addConstraint(Sketcher.Constraint("Vertical", 3))
sketch17.addConstraint(Sketcher.Constraint("DistanceX", 0, 2, 0, 1, 5.0))
sketch17.addConstraint(Sketcher.Constraint("DistanceY", 1, 2, 1, 1, 30.0))
sketch17.addConstraint(Sketcher.Constraint("DistanceX", 0, 2, -1, 1, 17.5))
sketch17.addConstraint(Sketcher.Constraint("DistanceY", -1, 1, 0, 2, 485.519761))
pad17 = body.newObject("PartDesign::Pad", "Pad016")
pad17.Profile = sketch17
pad17.Type = "TwoLengths"
pad17.Length = 61
pad17.Length2 = 75

# Sketch on YZ plane
sketch18 = body.newObject("Sketcher::SketchObject", "Sketch017")
sketch18.AttachmentSupport = (doc.getObject("YZ_Plane"), [""])
sketch18.MapMode = "FlatFace"
sketch18.AttachmentOffset = App.Placement(V(0, 0, 12.5), App.Rotation())
sketch18.addGeometry(Part.LineSegment(V(112, 406, 0), V(108, 406, 0)), False)
sketch18.addGeometry(Part.LineSegment(V(108, 406, 0), V(108, 376, 0)), False)
sketch18.addGeometry(Part.LineSegment(V(108, 376, 0), V(112, 376, 0)), False)
sketch18.addGeometry(Part.LineSegment(V(112, 376, 0), V(112, 406, 0)), False)
sketch18.addGeometry(Part.LineSegment(V(238, 359, 0), V(232, 359, 0)), False)
sketch18.addGeometry(Part.LineSegment(V(232, 359, 0), V(232, 329, 0)), False)
sketch18.addGeometry(Part.LineSegment(V(232, 329, 0), V(238, 329, 0)), False)
sketch18.addGeometry(Part.LineSegment(V(238, 329, 0), V(238, 359, 0)), False)
sketch18.addGeometry(Part.LineSegment(V(362, 298, 0), V(358, 298, 0)), False)
sketch18.addGeometry(Part.LineSegment(V(358, 298, 0), V(358, 268, 0)), False)
sketch18.addGeometry(Part.LineSegment(V(358, 268, 0), V(362, 268, 0)), False)
sketch18.addGeometry(Part.LineSegment(V(362, 268, 0), V(362, 298, 0)), False)
sketch18.addConstraint(Sketcher.Constraint("Coincident", 0, 2, 1, 1))
sketch18.addConstraint(Sketcher.Constraint("Coincident", 1, 2, 2, 1))
sketch18.addConstraint(Sketcher.Constraint("Coincident", 2, 2, 3, 1))
sketch18.addConstraint(Sketcher.Constraint("Coincident", 3, 2, 0, 1))
sketch18.addConstraint(Sketcher.Constraint("Coincident", 4, 2, 5, 1))
sketch18.addConstraint(Sketcher.Constraint("Coincident", 5, 2, 6, 1))
sketch18.addConstraint(Sketcher.Constraint("Coincident", 6, 2, 7, 1))
sketch18.addConstraint(Sketcher.Constraint("Coincident", 7, 2, 4, 1))
sketch18.addConstraint(Sketcher.Constraint("Coincident", 8, 2, 9, 1))
sketch18.addConstraint(Sketcher.Constraint("Coincident", 9, 2, 10, 1))
sketch18.addConstraint(Sketcher.Constraint("Coincident", 10, 2, 11, 1))
sketch18.addConstraint(Sketcher.Constraint("Coincident", 11, 2, 8, 1))
sketch18.addConstraint(Sketcher.Constraint("Horizontal", 0))
sketch18.addConstraint(Sketcher.Constraint("Vertical", 1))
sketch18.addConstraint(Sketcher.Constraint("Horizontal", 2))
sketch18.addConstraint(Sketcher.Constraint("Vertical", 3))
sketch18.addConstraint(Sketcher.Constraint("Horizontal", 4))
sketch18.addConstraint(Sketcher.Constraint("Vertical", 5))
sketch18.addConstraint(Sketcher.Constraint("Horizontal", 6))
sketch18.addConstraint(Sketcher.Constraint("Vertical", 7))
sketch18.addConstraint(Sketcher.Constraint("Horizontal", 8))
sketch18.addConstraint(Sketcher.Constraint("Vertical", 9))
sketch18.addConstraint(Sketcher.Constraint("Horizontal", 10))
sketch18.addConstraint(Sketcher.Constraint("Vertical", 11))
sketch18.addConstraint(Sketcher.Constraint("Equal", 2, 4))
sketch18.addConstraint(Sketcher.Constraint("Equal", 6, 8))
sketch18.addConstraint(Sketcher.Constraint("Equal", 3, 5))
sketch18.addConstraint(Sketcher.Constraint("Equal", 7, 9))
sketch18.addConstraint(Sketcher.Constraint("DistanceX", 0, 2, 0, 1, 5.0))
sketch18.addConstraint(Sketcher.Constraint("DistanceY", 1, 2, 1, 1, 30.0))
sketch18.addConstraint(Sketcher.Constraint("DistanceX", 2, 2, 4, 2, 120.0))
sketch18.addConstraint(Sketcher.Constraint("DistanceX", 6, 2, 8, 2, 120.0))
sketch18.addConstraint(Sketcher.Constraint("DistanceX", -1, 1, 0, 2, 107.5))
sketch18.addConstraint(Sketcher.Constraint("DistanceY", -1, 1, 4, 2, 358.832489))
sketch18.addConstraint(Sketcher.Constraint("DistanceY", 8, 2, 2, 2, 78.312782))
sketch18.addConstraint(Sketcher.Constraint("DistanceY", -1, 1, 0, 2, 405.907976))
pad18 = body.newObject("PartDesign::Pad", "Pad017")
pad18.Profile = sketch18
pad18.Type = "TwoLengths"
pad18.Length = 60
pad18.Length2 = 75

# Sketch on XY plane
sketch19 = body.newObject("Sketcher::SketchObject", "Sketch018")
sketch19.AttachmentSupport = (doc.getObject("XY_Plane"), [""])
sketch19.MapMode = "FlatFace"
sketch19.AttachmentOffset = App.Placement(V(0, 0, 12.5), App.Rotation())
sketch19.addGeometry(Part.LineSegment(V(469, -12, 0), V(469, -18, 0)), False)
sketch19.addGeometry(Part.LineSegment(V(469, -18, 0), V(499, -18, 0)), False)
sketch19.addGeometry(Part.LineSegment(V(499, -18, 0), V(499, -12, 0)), False)
sketch19.addGeometry(Part.LineSegment(V(499, -12, 0), V(469, -12, 0)), False)
sketch19.addGeometry(Part.LineSegment(V(389, 112, 0), V(389, 108, 0)), False)
sketch19.addGeometry(Part.LineSegment(V(389, 108, 0), V(419, 108, 0)), False)
sketch19.addGeometry(Part.LineSegment(V(419, 108, 0), V(419, 112, 0)), False)
sketch19.addGeometry(Part.LineSegment(V(419, 112, 0), V(389, 112, 0)), False)
sketch19.addGeometry(Part.LineSegment(V(335, 238, 0), V(335, 232, 0)), False)
sketch19.addGeometry(Part.LineSegment(V(335, 232, 0), V(365, 232, 0)), False)
sketch19.addGeometry(Part.LineSegment(V(365, 232, 0), V(365, 238, 0)), False)
sketch19.addGeometry(Part.LineSegment(V(365, 238, 0), V(335, 238, 0)), False)
sketch19.addGeometry(Part.LineSegment(V(262, 362, 0), V(262, 358, 0)), False)
sketch19.addGeometry(Part.LineSegment(V(262, 358, 0), V(292, 358, 0)), False)
sketch19.addGeometry(Part.LineSegment(V(292, 358, 0), V(292, 362, 0)), False)
sketch19.addGeometry(Part.LineSegment(V(292, 362, 0), V(262, 362, 0)), False)
sketch19.addConstraint(Sketcher.Constraint("Coincident", 0, 2, 1, 1))
sketch19.addConstraint(Sketcher.Constraint("Coincident", 1, 2, 2, 1))
sketch19.addConstraint(Sketcher.Constraint("Coincident", 2, 2, 3, 1))
sketch19.addConstraint(Sketcher.Constraint("Coincident", 3, 2, 0, 1))
sketch19.addConstraint(Sketcher.Constraint("Coincident", 4, 2, 5, 1))
sketch19.addConstraint(Sketcher.Constraint("Coincident", 5, 2, 6, 1))
sketch19.addConstraint(Sketcher.Constraint("Coincident", 6, 2, 7, 1))
sketch19.addConstraint(Sketcher.Constraint("Coincident", 7, 2, 4, 1))
sketch19.addConstraint(Sketcher.Constraint("Coincident", 8, 2, 9, 1))
sketch19.addConstraint(Sketcher.Constraint("Coincident", 9, 2, 10, 1))
sketch19.addConstraint(Sketcher.Constraint("Coincident", 10, 2, 11, 1))
sketch19.addConstraint(Sketcher.Constraint("Coincident", 11, 2, 8, 1))
sketch19.addConstraint(Sketcher.Constraint("Coincident", 12, 2, 13, 1))
sketch19.addConstraint(Sketcher.Constraint("Coincident", 13, 2, 14, 1))
sketch19.addConstraint(Sketcher.Constraint("Coincident", 14, 2, 15, 1))
sketch19.addConstraint(Sketcher.Constraint("Coincident", 15, 2, 12, 1))
sketch19.addConstraint(Sketcher.Constraint("Vertical", 0))
sketch19.addConstraint(Sketcher.Constraint("Horizontal", 1))
sketch19.addConstraint(Sketcher.Constraint("Vertical", 2))
sketch19.addConstraint(Sketcher.Constraint("Horizontal", 3))
sketch19.addConstraint(Sketcher.Constraint("Vertical", 4))
sketch19.addConstraint(Sketcher.Constraint("Horizontal", 5))
sketch19.addConstraint(Sketcher.Constraint("Vertical", 6))
sketch19.addConstraint(Sketcher.Constraint("Horizontal", 7))
sketch19.addConstraint(Sketcher.Constraint("Vertical", 8))
sketch19.addConstraint(Sketcher.Constraint("Horizontal", 9))
sketch19.addConstraint(Sketcher.Constraint("Vertical", 10))
sketch19.addConstraint(Sketcher.Constraint("Horizontal", 11))
sketch19.addConstraint(Sketcher.Constraint("Vertical", 12))
sketch19.addConstraint(Sketcher.Constraint("Horizontal", 13))
sketch19.addConstraint(Sketcher.Constraint("Vertical", 14))
sketch19.addConstraint(Sketcher.Constraint("Horizontal", 15))
sketch19.addConstraint(Sketcher.Constraint("Equal", 3, 5))
sketch19.addConstraint(Sketcher.Constraint("Equal", 7, 9))
sketch19.addConstraint(Sketcher.Constraint("Equal", 11, 13))
sketch19.addConstraint(Sketcher.Constraint("Equal", 2, 4))
sketch19.addConstraint(Sketcher.Constraint("Equal", 6, 8))
sketch19.addConstraint(Sketcher.Constraint("Equal", 10, 12))
sketch19.addConstraint(Sketcher.Constraint("DistanceX", 1, 1, 1, 2, 30.0))
sketch19.addConstraint(Sketcher.Constraint("DistanceY", 0, 2, 0, 1, 5.0))
sketch19.addConstraint(Sketcher.Constraint("DistanceY", 3, 2, 4, 2, 120.0))
sketch19.addConstraint(Sketcher.Constraint("DistanceY", 7, 2, 8, 2, 120.0))
sketch19.addConstraint(Sketcher.Constraint("DistanceY", 11, 2, 12, 2, 120.0))
sketch19.addConstraint(Sketcher.Constraint("DistanceY", 0, 2, -1, 1, 17.5))
sketch19.addConstraint(Sketcher.Constraint("DistanceX", -1, 1, 4, 2, 388.744812))
sketch19.addConstraint(Sketcher.Constraint("DistanceX", -1, 1, 8, 2, 334.754482))
sketch19.addConstraint(Sketcher.Constraint("DistanceX", 4, 2, 3, 2, 79.982552))
sketch19.addConstraint(Sketcher.Constraint("DistanceX", -1, 1, 12, 2, 262.187384))
pad19 = body.newObject("PartDesign::Pad", "Pad018")
pad19.Profile = sketch19
pad19.Type = "TwoLengths"
pad19.Length = 61
pad19.Length2 = 86

# Sketch on YZ plane
sketch20 = body.newObject("Sketcher::SketchObject", "Sketch019")
sketch20.AttachmentSupport = (doc.getObject("YZ_Plane"), [""])
sketch20.MapMode = "FlatFace"
sketch20.AttachmentOffset = App.Placement(V(0, 0, 12.5), App.Rotation())
sketch20.addGeometry(Part.LineSegment(V(-12, -430, 0), V(-18, -430, 0)), False)
sketch20.addGeometry(Part.LineSegment(V(-18, -430, 0), V(-18, -460, 0)), False)
sketch20.addGeometry(Part.LineSegment(V(-18, -460, 0), V(-12, -460, 0)), False)
sketch20.addGeometry(Part.LineSegment(V(-12, -460, 0), V(-12, -430, 0)), False)
sketch20.addGeometry(Part.LineSegment(V(112, -395, 0), V(108, -395, 0)), False)
sketch20.addGeometry(Part.LineSegment(V(108, -395, 0), V(108, -425, 0)), False)
sketch20.addGeometry(Part.LineSegment(V(108, -425, 0), V(112, -425, 0)), False)
sketch20.addGeometry(Part.LineSegment(V(112, -425, 0), V(112, -395, 0)), False)
sketch20.addGeometry(Part.LineSegment(V(238, -326, 0), V(232, -326, 0)), False)
sketch20.addGeometry(Part.LineSegment(V(232, -326, 0), V(232, -356, 0)), False)
sketch20.addGeometry(Part.LineSegment(V(232, -356, 0), V(238, -356, 0)), False)
sketch20.addGeometry(Part.LineSegment(V(238, -356, 0), V(238, -326, 0)), False)
sketch20.addGeometry(Part.LineSegment(V(362, -252, 0), V(358, -252, 0)), False)
sketch20.addGeometry(Part.LineSegment(V(358, -252, 0), V(358, -282, 0)), False)
sketch20.addGeometry(Part.LineSegment(V(358, -282, 0), V(362, -282, 0)), False)
sketch20.addGeometry(Part.LineSegment(V(362, -282, 0), V(362, -252, 0)), False)
sketch20.addConstraint(Sketcher.Constraint("Coincident", 0, 2, 1, 1))
sketch20.addConstraint(Sketcher.Constraint("Coincident", 1, 2, 2, 1))
sketch20.addConstraint(Sketcher.Constraint("Coincident", 2, 2, 3, 1))
sketch20.addConstraint(Sketcher.Constraint("Coincident", 3, 2, 0, 1))
sketch20.addConstraint(Sketcher.Constraint("Coincident", 4, 2, 5, 1))
sketch20.addConstraint(Sketcher.Constraint("Coincident", 5, 2, 6, 1))
sketch20.addConstraint(Sketcher.Constraint("Coincident", 6, 2, 7, 1))
sketch20.addConstraint(Sketcher.Constraint("Coincident", 7, 2, 4, 1))
sketch20.addConstraint(Sketcher.Constraint("Coincident", 8, 2, 9, 1))
sketch20.addConstraint(Sketcher.Constraint("Coincident", 9, 2, 10, 1))
sketch20.addConstraint(Sketcher.Constraint("Coincident", 10, 2, 11, 1))
sketch20.addConstraint(Sketcher.Constraint("Coincident", 11, 2, 8, 1))
sketch20.addConstraint(Sketcher.Constraint("Coincident", 12, 2, 13, 1))
sketch20.addConstraint(Sketcher.Constraint("Coincident", 13, 2, 14, 1))
sketch20.addConstraint(Sketcher.Constraint("Coincident", 14, 2, 15, 1))
sketch20.addConstraint(Sketcher.Constraint("Coincident", 15, 2, 12, 1))
sketch20.addConstraint(Sketcher.Constraint("Horizontal", 0))
sketch20.addConstraint(Sketcher.Constraint("Vertical", 1))
sketch20.addConstraint(Sketcher.Constraint("Horizontal", 2))
sketch20.addConstraint(Sketcher.Constraint("Vertical", 3))
sketch20.addConstraint(Sketcher.Constraint("Horizontal", 4))
sketch20.addConstraint(Sketcher.Constraint("Vertical", 5))
sketch20.addConstraint(Sketcher.Constraint("Horizontal", 6))
sketch20.addConstraint(Sketcher.Constraint("Vertical", 7))
sketch20.addConstraint(Sketcher.Constraint("Horizontal", 8))
sketch20.addConstraint(Sketcher.Constraint("Vertical", 9))
sketch20.addConstraint(Sketcher.Constraint("Horizontal", 10))
sketch20.addConstraint(Sketcher.Constraint("Vertical", 11))
sketch20.addConstraint(Sketcher.Constraint("Horizontal", 12))
sketch20.addConstraint(Sketcher.Constraint("Vertical", 13))
sketch20.addConstraint(Sketcher.Constraint("Horizontal", 14))
sketch20.addConstraint(Sketcher.Constraint("Vertical", 15))
sketch20.addConstraint(Sketcher.Constraint("Equal", 2, 4))
sketch20.addConstraint(Sketcher.Constraint("Equal", 6, 8))
sketch20.addConstraint(Sketcher.Constraint("Equal", 10, 12))
sketch20.addConstraint(Sketcher.Constraint("Equal", 3, 5))
sketch20.addConstraint(Sketcher.Constraint("Equal", 7, 9))
sketch20.addConstraint(Sketcher.Constraint("Equal", 11, 13))
sketch20.addConstraint(Sketcher.Constraint("DistanceX", 0, 2, 0, 1, 5.0))
sketch20.addConstraint(Sketcher.Constraint("DistanceY", 1, 2, 1, 1, 30.0))
sketch20.addConstraint(Sketcher.Constraint("DistanceX", 3, 2, 4, 2, 120.0))
sketch20.addConstraint(Sketcher.Constraint("DistanceX", 7, 2, 8, 2, 120.0))
sketch20.addConstraint(Sketcher.Constraint("DistanceX", 11, 2, 12, 2, 120.0))
sketch20.addConstraint(Sketcher.Constraint("DistanceX", 0, 2, -1, 1, 17.5))
sketch20.addConstraint(Sketcher.Constraint("DistanceY", 12, 2, -1, 1, 252.100502))
sketch20.addConstraint(Sketcher.Constraint("DistanceY", 4, 2, -1, 1, 394.726409))
sketch20.addConstraint(Sketcher.Constraint("DistanceY", 11, 2, 12, 2, 74.148581))
sketch20.addConstraint(Sketcher.Constraint("DistanceY", 0, 2, -1, 1, 429.861976))
pad20 = body.newObject("PartDesign::Pad", "Pad019")
pad20.Profile = sketch20
pad20.Type = "TwoLengths"
pad20.Length = 60
pad20.Length2 = 85

# Sketch on XY plane
sketch21 = body.newObject("Sketcher::SketchObject", "Sketch020")
sketch21.AttachmentSupport = (doc.getObject("XY_Plane"), [""])
sketch21.MapMode = "FlatFace"
sketch21.AttachmentOffset = App.Placement(V(0, 0, -12.5), App.Rotation())
sketch21.addGeometry(Part.LineSegment(V(-415, -12, 0), V(-415, -18, 0)), False)
sketch21.addGeometry(Part.LineSegment(V(-415, -18, 0), V(-445, -18, 0)), False)
sketch21.addGeometry(Part.LineSegment(V(-445, -18, 0), V(-445, -12, 0)), False)
sketch21.addGeometry(Part.LineSegment(V(-445, -12, 0), V(-415, -12, 0)), False)
sketch21.addGeometry(Part.LineSegment(V(-385, 112, 0), V(-385, 108, 0)), False)
sketch21.addGeometry(Part.LineSegment(V(-385, 108, 0), V(-415, 108, 0)), False)
sketch21.addGeometry(Part.LineSegment(V(-415, 108, 0), V(-415, 112, 0)), False)
sketch21.addGeometry(Part.LineSegment(V(-415, 112, 0), V(-385, 112, 0)), False)
sketch21.addGeometry(Part.LineSegment(V(-322, 238, 0), V(-322, 232, 0)), False)
sketch21.addGeometry(Part.LineSegment(V(-322, 232, 0), V(-352, 232, 0)), False)
sketch21.addGeometry(Part.LineSegment(V(-352, 232, 0), V(-352, 238, 0)), False)
sketch21.addGeometry(Part.LineSegment(V(-352, 238, 0), V(-322, 238, 0)), False)
sketch21.addGeometry(Part.LineSegment(V(-263, 362, 0), V(-263, 358, 0)), False)
sketch21.addGeometry(Part.LineSegment(V(-263, 358, 0), V(-293, 358, 0)), False)
sketch21.addGeometry(Part.LineSegment(V(-293, 358, 0), V(-293, 362, 0)), False)
sketch21.addGeometry(Part.LineSegment(V(-293, 362, 0), V(-263, 362, 0)), False)
sketch21.addConstraint(Sketcher.Constraint("Coincident", 0, 2, 1, 1))
sketch21.addConstraint(Sketcher.Constraint("Coincident", 1, 2, 2, 1))
sketch21.addConstraint(Sketcher.Constraint("Coincident", 2, 2, 3, 1))
sketch21.addConstraint(Sketcher.Constraint("Coincident", 3, 2, 0, 1))
sketch21.addConstraint(Sketcher.Constraint("Coincident", 4, 2, 5, 1))
sketch21.addConstraint(Sketcher.Constraint("Coincident", 5, 2, 6, 1))
sketch21.addConstraint(Sketcher.Constraint("Coincident", 6, 2, 7, 1))
sketch21.addConstraint(Sketcher.Constraint("Coincident", 7, 2, 4, 1))
sketch21.addConstraint(Sketcher.Constraint("Coincident", 8, 2, 9, 1))
sketch21.addConstraint(Sketcher.Constraint("Coincident", 9, 2, 10, 1))
sketch21.addConstraint(Sketcher.Constraint("Coincident", 10, 2, 11, 1))
sketch21.addConstraint(Sketcher.Constraint("Coincident", 11, 2, 8, 1))
sketch21.addConstraint(Sketcher.Constraint("Coincident", 12, 2, 13, 1))
sketch21.addConstraint(Sketcher.Constraint("Coincident", 13, 2, 14, 1))
sketch21.addConstraint(Sketcher.Constraint("Coincident", 14, 2, 15, 1))
sketch21.addConstraint(Sketcher.Constraint("Coincident", 15, 2, 12, 1))
sketch21.addConstraint(Sketcher.Constraint("Vertical", 0))
sketch21.addConstraint(Sketcher.Constraint("Horizontal", 1))
sketch21.addConstraint(Sketcher.Constraint("Vertical", 2))
sketch21.addConstraint(Sketcher.Constraint("Horizontal", 3))
sketch21.addConstraint(Sketcher.Constraint("Vertical", 4))
sketch21.addConstraint(Sketcher.Constraint("Horizontal", 5))
sketch21.addConstraint(Sketcher.Constraint("Vertical", 6))
sketch21.addConstraint(Sketcher.Constraint("Horizontal", 7))
sketch21.addConstraint(Sketcher.Constraint("Vertical", 8))
sketch21.addConstraint(Sketcher.Constraint("Horizontal", 9))
sketch21.addConstraint(Sketcher.Constraint("Vertical", 10))
sketch21.addConstraint(Sketcher.Constraint("Horizontal", 11))
sketch21.addConstraint(Sketcher.Constraint("Vertical", 12))
sketch21.addConstraint(Sketcher.Constraint("Horizontal", 13))
sketch21.addConstraint(Sketcher.Constraint("Vertical", 14))
sketch21.addConstraint(Sketcher.Constraint("Horizontal", 15))
sketch21.addConstraint(Sketcher.Constraint("Vertical", 3, 2, 5, 2))
sketch21.addConstraint(Sketcher.Constraint("Equal", 3, 5))
sketch21.addConstraint(Sketcher.Constraint("Equal", 7, 9))
sketch21.addConstraint(Sketcher.Constraint("Equal", 11, 13))
sketch21.addConstraint(Sketcher.Constraint("Equal", 2, 4))
sketch21.addConstraint(Sketcher.Constraint("Equal", 6, 8))
sketch21.addConstraint(Sketcher.Constraint("Equal", 10, 12))
sketch21.addConstraint(Sketcher.Constraint("DistanceX", 1, 2, 1, 1, 30.0))
sketch21.addConstraint(Sketcher.Constraint("DistanceY", 0, 2, 0, 1, 5.0))
sketch21.addConstraint(Sketcher.Constraint("DistanceY", 3, 2, 4, 2, 120.0))
sketch21.addConstraint(Sketcher.Constraint("DistanceY", 7, 2, 8, 2, 120.0))
sketch21.addConstraint(Sketcher.Constraint("DistanceY", 11, 2, 12, 2, 120.0))
sketch21.addConstraint(Sketcher.Constraint("DistanceY", 0, 2, -1, 1, 17.5))
sketch21.addConstraint(Sketcher.Constraint("DistanceX", 11, 2, 12, 2, 58.4804))
sketch21.addConstraint(Sketcher.Constraint("DistanceX", 0, 2, -1, 1, 415.066632))
sketch21.addConstraint(Sketcher.Constraint("DistanceX", 8, 2, -1, 1, 321.540648))
pad21 = body.newObject("PartDesign::Pad", "Pad020")
pad21.Profile = sketch21
pad21.Type = "TwoLengths"
pad21.Length = 61
pad21.Length2 = 86
pad21.Reversed = True

doc.recompute()
